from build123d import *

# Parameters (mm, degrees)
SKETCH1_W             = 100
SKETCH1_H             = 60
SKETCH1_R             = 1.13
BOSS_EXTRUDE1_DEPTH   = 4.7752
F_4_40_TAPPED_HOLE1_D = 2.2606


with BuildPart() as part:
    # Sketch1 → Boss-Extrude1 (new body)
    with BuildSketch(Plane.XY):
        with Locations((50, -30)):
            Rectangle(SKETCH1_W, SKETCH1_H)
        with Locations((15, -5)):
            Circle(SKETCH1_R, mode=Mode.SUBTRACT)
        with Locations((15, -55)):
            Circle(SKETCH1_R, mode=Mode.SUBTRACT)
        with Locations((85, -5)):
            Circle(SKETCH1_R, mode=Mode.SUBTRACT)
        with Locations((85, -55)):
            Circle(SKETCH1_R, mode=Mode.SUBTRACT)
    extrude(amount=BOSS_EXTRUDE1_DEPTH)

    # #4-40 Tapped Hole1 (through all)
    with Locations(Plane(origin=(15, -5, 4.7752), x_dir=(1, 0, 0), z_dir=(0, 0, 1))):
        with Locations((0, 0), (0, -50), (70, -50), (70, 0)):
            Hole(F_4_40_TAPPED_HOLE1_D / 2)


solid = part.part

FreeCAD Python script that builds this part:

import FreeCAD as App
import Part
import Sketcher
from FreeCAD import Vector


def add_polygon(sketch, points):
    """Adds a closed chain of lines whose ends are joined by coincident constraints."""
    first, n = sketch.GeometryCount, len(points)
    for a, b in zip(points, points[1:] + points[:1]):
        sketch.addGeometry(Part.LineSegment(App.Vector(*a, 0), App.Vector(*b, 0)), False)
    for i in range(n):
        sketch.addConstraint(Sketcher.Constraint("Coincident", first + i, 2, first + (i + 1) % n, 1))

doc = App.newDocument("Part")
body = doc.addObject("PartDesign::Body", "Body")

sketch1 = doc.addObject("Sketcher::SketchObject", "Sketch")
body.addObject(sketch1)
sketch1.AttachmentSupport = (doc.XY_Plane, [""])
sketch1.MapMode = "FlatFace"
add_polygon(sketch1, [(0, 0), (0, -60), (100, -60), (100, 0)])
sketch1.addGeometry(Part.Circle(Vector(15, -55, 0), Vector(0, 0, 1), 1.13), False)
sketch1.addGeometry(Part.Circle(Vector(85, -55, 0), Vector(0, 0, 1), 1.13), False)
sketch1.addGeometry(Part.Circle(Vector(15, -5, 0), Vector(0, 0, 1), 1.13), False)
sketch1.addGeometry(Part.Circle(Vector(85, -5, 0), Vector(0, 0, 1), 1.13), False)
sketch1.addConstraint(Sketcher.Constraint("Vertical", 0))
sketch1.addConstraint(Sketcher.Constraint("Horizontal", 1))
sketch1.addConstraint(Sketcher.Constraint("Vertical", 2))
sketch1.addConstraint(Sketcher.Constraint("Horizontal", 3))
sketch1.addConstraint(Sketcher.Constraint("Coincident", 3, 2, -1, 1))
sketch1.addConstraint(Sketcher.Constraint("Equal", 4, 5))
sketch1.addConstraint(Sketcher.Constraint("Equal", 5, 6))
sketch1.addConstraint(Sketcher.Constraint("Equal", 6, 7))
sketch1.addConstraint(Sketcher.Constraint("Horizontal", 4, 3, 5, 3))
sketch1.addConstraint(Sketcher.Constraint("Horizontal", 6, 3, 7, 3))
sketch1.addConstraint(Sketcher.Constraint("Vertical", 4, 3, 6, 3))
sketch1.addConstraint(Sketcher.Constraint("Vertical", 5, 3, 7, 3))
sketch1.addConstraint(Sketcher.Constraint("Diameter", 4, 2.26))
sketch1.addConstraint(Sketcher.Constraint("DistanceX", 1, 1, 1, 2, 100.0))
sketch1.addConstraint(Sketcher.Constraint("DistanceY", 0, 2, 0, 1, 60.0))
sketch1.addConstraint(Sketcher.Constraint("DistanceX", -1, 1, 4, 3, 15.0))
sketch1.addConstraint(Sketcher.Constraint("DistanceY", 4, 3, -1, 1, 55.0))
sketch1.addConstraint(Sketcher.Constraint("DistanceX", -1, 1, 5, 3, 85.0))
sketch1.addConstraint(Sketcher.Constraint("DistanceY", 6, 3, -1, 1, 5.0))
pad1 = doc.addObject("PartDesign::Pad", "Pad")
body.addObject(pad1)
pad1.Profile = sketch1
pad1.Length = 4.7752

sketch2 = doc.addObject("Sketcher::SketchObject", "Sketch001")
body.addObject(sketch2)
sketch2.AttachmentSupport = (doc.XY_Plane, [""])
sketch2.MapMode = "FlatFace"
sketch2.AttachmentOffset = App.Placement(Vector(0, 0, 4.7752), App.Rotation())
sketch2.addGeometry(Part.Circle(Vector(15, -5, 0), Vector(0, 0, 1), 1.1303), False)
sketch2.addGeometry(Part.Circle(Vector(15, -55, 0), Vector(0, 0, 1), 1.1303), False)
sketch2.addGeometry(Part.Circle(Vector(85, -55, 0), Vector(0, 0, 1), 1.1303), False)
sketch2.addGeometry(Part.Circle(Vector(85, -5, 0), Vector(0, 0, 1), 1.1303), False)
sketch2.addConstraint(Sketcher.Constraint("Equal", 0, 1))
sketch2.addConstraint(Sketcher.Constraint("Equal", 1, 2))
sketch2.addConstraint(Sketcher.Constraint("Equal", 2, 3))
sketch2.addConstraint(Sketcher.Constraint("Horizontal", 1, 3, 2, 3))
sketch2.addConstraint(Sketcher.Constraint("Horizontal", 0, 3, 3, 3))
sketch2.addConstraint(Sketcher.Constraint("Vertical", 0, 3, 1, 3))
sketch2.addConstraint(Sketcher.Constraint("Vertical", 2, 3, 3, 3))
sketch2.addConstraint(Sketcher.Constraint("DistanceX", -1, 1, 0, 3, 15.0))
sketch2.addConstraint(Sketcher.Constraint("DistanceY", 0, 3, -1, 1, 5.0))
sketch2.addConstraint(Sketcher.Constraint("DistanceY", 1, 3, -1, 1, 55.0))
sketch2.addConstraint(Sketcher.Constraint("DistanceX", -1, 1, 2, 3, 85.0))
sketch2.addConstraint(Sketcher.Constraint("Diameter", 0, 2.2606))
doc.recompute()
hole = doc.addObject("PartDesign::Hole", "Hole")
body.addObject(hole)
hole.Profile = sketch2
hole.ThreadType = "None"
hole.Diameter = 2.2606
hole.DepthType = "ThroughAll"

doc.recompute()
